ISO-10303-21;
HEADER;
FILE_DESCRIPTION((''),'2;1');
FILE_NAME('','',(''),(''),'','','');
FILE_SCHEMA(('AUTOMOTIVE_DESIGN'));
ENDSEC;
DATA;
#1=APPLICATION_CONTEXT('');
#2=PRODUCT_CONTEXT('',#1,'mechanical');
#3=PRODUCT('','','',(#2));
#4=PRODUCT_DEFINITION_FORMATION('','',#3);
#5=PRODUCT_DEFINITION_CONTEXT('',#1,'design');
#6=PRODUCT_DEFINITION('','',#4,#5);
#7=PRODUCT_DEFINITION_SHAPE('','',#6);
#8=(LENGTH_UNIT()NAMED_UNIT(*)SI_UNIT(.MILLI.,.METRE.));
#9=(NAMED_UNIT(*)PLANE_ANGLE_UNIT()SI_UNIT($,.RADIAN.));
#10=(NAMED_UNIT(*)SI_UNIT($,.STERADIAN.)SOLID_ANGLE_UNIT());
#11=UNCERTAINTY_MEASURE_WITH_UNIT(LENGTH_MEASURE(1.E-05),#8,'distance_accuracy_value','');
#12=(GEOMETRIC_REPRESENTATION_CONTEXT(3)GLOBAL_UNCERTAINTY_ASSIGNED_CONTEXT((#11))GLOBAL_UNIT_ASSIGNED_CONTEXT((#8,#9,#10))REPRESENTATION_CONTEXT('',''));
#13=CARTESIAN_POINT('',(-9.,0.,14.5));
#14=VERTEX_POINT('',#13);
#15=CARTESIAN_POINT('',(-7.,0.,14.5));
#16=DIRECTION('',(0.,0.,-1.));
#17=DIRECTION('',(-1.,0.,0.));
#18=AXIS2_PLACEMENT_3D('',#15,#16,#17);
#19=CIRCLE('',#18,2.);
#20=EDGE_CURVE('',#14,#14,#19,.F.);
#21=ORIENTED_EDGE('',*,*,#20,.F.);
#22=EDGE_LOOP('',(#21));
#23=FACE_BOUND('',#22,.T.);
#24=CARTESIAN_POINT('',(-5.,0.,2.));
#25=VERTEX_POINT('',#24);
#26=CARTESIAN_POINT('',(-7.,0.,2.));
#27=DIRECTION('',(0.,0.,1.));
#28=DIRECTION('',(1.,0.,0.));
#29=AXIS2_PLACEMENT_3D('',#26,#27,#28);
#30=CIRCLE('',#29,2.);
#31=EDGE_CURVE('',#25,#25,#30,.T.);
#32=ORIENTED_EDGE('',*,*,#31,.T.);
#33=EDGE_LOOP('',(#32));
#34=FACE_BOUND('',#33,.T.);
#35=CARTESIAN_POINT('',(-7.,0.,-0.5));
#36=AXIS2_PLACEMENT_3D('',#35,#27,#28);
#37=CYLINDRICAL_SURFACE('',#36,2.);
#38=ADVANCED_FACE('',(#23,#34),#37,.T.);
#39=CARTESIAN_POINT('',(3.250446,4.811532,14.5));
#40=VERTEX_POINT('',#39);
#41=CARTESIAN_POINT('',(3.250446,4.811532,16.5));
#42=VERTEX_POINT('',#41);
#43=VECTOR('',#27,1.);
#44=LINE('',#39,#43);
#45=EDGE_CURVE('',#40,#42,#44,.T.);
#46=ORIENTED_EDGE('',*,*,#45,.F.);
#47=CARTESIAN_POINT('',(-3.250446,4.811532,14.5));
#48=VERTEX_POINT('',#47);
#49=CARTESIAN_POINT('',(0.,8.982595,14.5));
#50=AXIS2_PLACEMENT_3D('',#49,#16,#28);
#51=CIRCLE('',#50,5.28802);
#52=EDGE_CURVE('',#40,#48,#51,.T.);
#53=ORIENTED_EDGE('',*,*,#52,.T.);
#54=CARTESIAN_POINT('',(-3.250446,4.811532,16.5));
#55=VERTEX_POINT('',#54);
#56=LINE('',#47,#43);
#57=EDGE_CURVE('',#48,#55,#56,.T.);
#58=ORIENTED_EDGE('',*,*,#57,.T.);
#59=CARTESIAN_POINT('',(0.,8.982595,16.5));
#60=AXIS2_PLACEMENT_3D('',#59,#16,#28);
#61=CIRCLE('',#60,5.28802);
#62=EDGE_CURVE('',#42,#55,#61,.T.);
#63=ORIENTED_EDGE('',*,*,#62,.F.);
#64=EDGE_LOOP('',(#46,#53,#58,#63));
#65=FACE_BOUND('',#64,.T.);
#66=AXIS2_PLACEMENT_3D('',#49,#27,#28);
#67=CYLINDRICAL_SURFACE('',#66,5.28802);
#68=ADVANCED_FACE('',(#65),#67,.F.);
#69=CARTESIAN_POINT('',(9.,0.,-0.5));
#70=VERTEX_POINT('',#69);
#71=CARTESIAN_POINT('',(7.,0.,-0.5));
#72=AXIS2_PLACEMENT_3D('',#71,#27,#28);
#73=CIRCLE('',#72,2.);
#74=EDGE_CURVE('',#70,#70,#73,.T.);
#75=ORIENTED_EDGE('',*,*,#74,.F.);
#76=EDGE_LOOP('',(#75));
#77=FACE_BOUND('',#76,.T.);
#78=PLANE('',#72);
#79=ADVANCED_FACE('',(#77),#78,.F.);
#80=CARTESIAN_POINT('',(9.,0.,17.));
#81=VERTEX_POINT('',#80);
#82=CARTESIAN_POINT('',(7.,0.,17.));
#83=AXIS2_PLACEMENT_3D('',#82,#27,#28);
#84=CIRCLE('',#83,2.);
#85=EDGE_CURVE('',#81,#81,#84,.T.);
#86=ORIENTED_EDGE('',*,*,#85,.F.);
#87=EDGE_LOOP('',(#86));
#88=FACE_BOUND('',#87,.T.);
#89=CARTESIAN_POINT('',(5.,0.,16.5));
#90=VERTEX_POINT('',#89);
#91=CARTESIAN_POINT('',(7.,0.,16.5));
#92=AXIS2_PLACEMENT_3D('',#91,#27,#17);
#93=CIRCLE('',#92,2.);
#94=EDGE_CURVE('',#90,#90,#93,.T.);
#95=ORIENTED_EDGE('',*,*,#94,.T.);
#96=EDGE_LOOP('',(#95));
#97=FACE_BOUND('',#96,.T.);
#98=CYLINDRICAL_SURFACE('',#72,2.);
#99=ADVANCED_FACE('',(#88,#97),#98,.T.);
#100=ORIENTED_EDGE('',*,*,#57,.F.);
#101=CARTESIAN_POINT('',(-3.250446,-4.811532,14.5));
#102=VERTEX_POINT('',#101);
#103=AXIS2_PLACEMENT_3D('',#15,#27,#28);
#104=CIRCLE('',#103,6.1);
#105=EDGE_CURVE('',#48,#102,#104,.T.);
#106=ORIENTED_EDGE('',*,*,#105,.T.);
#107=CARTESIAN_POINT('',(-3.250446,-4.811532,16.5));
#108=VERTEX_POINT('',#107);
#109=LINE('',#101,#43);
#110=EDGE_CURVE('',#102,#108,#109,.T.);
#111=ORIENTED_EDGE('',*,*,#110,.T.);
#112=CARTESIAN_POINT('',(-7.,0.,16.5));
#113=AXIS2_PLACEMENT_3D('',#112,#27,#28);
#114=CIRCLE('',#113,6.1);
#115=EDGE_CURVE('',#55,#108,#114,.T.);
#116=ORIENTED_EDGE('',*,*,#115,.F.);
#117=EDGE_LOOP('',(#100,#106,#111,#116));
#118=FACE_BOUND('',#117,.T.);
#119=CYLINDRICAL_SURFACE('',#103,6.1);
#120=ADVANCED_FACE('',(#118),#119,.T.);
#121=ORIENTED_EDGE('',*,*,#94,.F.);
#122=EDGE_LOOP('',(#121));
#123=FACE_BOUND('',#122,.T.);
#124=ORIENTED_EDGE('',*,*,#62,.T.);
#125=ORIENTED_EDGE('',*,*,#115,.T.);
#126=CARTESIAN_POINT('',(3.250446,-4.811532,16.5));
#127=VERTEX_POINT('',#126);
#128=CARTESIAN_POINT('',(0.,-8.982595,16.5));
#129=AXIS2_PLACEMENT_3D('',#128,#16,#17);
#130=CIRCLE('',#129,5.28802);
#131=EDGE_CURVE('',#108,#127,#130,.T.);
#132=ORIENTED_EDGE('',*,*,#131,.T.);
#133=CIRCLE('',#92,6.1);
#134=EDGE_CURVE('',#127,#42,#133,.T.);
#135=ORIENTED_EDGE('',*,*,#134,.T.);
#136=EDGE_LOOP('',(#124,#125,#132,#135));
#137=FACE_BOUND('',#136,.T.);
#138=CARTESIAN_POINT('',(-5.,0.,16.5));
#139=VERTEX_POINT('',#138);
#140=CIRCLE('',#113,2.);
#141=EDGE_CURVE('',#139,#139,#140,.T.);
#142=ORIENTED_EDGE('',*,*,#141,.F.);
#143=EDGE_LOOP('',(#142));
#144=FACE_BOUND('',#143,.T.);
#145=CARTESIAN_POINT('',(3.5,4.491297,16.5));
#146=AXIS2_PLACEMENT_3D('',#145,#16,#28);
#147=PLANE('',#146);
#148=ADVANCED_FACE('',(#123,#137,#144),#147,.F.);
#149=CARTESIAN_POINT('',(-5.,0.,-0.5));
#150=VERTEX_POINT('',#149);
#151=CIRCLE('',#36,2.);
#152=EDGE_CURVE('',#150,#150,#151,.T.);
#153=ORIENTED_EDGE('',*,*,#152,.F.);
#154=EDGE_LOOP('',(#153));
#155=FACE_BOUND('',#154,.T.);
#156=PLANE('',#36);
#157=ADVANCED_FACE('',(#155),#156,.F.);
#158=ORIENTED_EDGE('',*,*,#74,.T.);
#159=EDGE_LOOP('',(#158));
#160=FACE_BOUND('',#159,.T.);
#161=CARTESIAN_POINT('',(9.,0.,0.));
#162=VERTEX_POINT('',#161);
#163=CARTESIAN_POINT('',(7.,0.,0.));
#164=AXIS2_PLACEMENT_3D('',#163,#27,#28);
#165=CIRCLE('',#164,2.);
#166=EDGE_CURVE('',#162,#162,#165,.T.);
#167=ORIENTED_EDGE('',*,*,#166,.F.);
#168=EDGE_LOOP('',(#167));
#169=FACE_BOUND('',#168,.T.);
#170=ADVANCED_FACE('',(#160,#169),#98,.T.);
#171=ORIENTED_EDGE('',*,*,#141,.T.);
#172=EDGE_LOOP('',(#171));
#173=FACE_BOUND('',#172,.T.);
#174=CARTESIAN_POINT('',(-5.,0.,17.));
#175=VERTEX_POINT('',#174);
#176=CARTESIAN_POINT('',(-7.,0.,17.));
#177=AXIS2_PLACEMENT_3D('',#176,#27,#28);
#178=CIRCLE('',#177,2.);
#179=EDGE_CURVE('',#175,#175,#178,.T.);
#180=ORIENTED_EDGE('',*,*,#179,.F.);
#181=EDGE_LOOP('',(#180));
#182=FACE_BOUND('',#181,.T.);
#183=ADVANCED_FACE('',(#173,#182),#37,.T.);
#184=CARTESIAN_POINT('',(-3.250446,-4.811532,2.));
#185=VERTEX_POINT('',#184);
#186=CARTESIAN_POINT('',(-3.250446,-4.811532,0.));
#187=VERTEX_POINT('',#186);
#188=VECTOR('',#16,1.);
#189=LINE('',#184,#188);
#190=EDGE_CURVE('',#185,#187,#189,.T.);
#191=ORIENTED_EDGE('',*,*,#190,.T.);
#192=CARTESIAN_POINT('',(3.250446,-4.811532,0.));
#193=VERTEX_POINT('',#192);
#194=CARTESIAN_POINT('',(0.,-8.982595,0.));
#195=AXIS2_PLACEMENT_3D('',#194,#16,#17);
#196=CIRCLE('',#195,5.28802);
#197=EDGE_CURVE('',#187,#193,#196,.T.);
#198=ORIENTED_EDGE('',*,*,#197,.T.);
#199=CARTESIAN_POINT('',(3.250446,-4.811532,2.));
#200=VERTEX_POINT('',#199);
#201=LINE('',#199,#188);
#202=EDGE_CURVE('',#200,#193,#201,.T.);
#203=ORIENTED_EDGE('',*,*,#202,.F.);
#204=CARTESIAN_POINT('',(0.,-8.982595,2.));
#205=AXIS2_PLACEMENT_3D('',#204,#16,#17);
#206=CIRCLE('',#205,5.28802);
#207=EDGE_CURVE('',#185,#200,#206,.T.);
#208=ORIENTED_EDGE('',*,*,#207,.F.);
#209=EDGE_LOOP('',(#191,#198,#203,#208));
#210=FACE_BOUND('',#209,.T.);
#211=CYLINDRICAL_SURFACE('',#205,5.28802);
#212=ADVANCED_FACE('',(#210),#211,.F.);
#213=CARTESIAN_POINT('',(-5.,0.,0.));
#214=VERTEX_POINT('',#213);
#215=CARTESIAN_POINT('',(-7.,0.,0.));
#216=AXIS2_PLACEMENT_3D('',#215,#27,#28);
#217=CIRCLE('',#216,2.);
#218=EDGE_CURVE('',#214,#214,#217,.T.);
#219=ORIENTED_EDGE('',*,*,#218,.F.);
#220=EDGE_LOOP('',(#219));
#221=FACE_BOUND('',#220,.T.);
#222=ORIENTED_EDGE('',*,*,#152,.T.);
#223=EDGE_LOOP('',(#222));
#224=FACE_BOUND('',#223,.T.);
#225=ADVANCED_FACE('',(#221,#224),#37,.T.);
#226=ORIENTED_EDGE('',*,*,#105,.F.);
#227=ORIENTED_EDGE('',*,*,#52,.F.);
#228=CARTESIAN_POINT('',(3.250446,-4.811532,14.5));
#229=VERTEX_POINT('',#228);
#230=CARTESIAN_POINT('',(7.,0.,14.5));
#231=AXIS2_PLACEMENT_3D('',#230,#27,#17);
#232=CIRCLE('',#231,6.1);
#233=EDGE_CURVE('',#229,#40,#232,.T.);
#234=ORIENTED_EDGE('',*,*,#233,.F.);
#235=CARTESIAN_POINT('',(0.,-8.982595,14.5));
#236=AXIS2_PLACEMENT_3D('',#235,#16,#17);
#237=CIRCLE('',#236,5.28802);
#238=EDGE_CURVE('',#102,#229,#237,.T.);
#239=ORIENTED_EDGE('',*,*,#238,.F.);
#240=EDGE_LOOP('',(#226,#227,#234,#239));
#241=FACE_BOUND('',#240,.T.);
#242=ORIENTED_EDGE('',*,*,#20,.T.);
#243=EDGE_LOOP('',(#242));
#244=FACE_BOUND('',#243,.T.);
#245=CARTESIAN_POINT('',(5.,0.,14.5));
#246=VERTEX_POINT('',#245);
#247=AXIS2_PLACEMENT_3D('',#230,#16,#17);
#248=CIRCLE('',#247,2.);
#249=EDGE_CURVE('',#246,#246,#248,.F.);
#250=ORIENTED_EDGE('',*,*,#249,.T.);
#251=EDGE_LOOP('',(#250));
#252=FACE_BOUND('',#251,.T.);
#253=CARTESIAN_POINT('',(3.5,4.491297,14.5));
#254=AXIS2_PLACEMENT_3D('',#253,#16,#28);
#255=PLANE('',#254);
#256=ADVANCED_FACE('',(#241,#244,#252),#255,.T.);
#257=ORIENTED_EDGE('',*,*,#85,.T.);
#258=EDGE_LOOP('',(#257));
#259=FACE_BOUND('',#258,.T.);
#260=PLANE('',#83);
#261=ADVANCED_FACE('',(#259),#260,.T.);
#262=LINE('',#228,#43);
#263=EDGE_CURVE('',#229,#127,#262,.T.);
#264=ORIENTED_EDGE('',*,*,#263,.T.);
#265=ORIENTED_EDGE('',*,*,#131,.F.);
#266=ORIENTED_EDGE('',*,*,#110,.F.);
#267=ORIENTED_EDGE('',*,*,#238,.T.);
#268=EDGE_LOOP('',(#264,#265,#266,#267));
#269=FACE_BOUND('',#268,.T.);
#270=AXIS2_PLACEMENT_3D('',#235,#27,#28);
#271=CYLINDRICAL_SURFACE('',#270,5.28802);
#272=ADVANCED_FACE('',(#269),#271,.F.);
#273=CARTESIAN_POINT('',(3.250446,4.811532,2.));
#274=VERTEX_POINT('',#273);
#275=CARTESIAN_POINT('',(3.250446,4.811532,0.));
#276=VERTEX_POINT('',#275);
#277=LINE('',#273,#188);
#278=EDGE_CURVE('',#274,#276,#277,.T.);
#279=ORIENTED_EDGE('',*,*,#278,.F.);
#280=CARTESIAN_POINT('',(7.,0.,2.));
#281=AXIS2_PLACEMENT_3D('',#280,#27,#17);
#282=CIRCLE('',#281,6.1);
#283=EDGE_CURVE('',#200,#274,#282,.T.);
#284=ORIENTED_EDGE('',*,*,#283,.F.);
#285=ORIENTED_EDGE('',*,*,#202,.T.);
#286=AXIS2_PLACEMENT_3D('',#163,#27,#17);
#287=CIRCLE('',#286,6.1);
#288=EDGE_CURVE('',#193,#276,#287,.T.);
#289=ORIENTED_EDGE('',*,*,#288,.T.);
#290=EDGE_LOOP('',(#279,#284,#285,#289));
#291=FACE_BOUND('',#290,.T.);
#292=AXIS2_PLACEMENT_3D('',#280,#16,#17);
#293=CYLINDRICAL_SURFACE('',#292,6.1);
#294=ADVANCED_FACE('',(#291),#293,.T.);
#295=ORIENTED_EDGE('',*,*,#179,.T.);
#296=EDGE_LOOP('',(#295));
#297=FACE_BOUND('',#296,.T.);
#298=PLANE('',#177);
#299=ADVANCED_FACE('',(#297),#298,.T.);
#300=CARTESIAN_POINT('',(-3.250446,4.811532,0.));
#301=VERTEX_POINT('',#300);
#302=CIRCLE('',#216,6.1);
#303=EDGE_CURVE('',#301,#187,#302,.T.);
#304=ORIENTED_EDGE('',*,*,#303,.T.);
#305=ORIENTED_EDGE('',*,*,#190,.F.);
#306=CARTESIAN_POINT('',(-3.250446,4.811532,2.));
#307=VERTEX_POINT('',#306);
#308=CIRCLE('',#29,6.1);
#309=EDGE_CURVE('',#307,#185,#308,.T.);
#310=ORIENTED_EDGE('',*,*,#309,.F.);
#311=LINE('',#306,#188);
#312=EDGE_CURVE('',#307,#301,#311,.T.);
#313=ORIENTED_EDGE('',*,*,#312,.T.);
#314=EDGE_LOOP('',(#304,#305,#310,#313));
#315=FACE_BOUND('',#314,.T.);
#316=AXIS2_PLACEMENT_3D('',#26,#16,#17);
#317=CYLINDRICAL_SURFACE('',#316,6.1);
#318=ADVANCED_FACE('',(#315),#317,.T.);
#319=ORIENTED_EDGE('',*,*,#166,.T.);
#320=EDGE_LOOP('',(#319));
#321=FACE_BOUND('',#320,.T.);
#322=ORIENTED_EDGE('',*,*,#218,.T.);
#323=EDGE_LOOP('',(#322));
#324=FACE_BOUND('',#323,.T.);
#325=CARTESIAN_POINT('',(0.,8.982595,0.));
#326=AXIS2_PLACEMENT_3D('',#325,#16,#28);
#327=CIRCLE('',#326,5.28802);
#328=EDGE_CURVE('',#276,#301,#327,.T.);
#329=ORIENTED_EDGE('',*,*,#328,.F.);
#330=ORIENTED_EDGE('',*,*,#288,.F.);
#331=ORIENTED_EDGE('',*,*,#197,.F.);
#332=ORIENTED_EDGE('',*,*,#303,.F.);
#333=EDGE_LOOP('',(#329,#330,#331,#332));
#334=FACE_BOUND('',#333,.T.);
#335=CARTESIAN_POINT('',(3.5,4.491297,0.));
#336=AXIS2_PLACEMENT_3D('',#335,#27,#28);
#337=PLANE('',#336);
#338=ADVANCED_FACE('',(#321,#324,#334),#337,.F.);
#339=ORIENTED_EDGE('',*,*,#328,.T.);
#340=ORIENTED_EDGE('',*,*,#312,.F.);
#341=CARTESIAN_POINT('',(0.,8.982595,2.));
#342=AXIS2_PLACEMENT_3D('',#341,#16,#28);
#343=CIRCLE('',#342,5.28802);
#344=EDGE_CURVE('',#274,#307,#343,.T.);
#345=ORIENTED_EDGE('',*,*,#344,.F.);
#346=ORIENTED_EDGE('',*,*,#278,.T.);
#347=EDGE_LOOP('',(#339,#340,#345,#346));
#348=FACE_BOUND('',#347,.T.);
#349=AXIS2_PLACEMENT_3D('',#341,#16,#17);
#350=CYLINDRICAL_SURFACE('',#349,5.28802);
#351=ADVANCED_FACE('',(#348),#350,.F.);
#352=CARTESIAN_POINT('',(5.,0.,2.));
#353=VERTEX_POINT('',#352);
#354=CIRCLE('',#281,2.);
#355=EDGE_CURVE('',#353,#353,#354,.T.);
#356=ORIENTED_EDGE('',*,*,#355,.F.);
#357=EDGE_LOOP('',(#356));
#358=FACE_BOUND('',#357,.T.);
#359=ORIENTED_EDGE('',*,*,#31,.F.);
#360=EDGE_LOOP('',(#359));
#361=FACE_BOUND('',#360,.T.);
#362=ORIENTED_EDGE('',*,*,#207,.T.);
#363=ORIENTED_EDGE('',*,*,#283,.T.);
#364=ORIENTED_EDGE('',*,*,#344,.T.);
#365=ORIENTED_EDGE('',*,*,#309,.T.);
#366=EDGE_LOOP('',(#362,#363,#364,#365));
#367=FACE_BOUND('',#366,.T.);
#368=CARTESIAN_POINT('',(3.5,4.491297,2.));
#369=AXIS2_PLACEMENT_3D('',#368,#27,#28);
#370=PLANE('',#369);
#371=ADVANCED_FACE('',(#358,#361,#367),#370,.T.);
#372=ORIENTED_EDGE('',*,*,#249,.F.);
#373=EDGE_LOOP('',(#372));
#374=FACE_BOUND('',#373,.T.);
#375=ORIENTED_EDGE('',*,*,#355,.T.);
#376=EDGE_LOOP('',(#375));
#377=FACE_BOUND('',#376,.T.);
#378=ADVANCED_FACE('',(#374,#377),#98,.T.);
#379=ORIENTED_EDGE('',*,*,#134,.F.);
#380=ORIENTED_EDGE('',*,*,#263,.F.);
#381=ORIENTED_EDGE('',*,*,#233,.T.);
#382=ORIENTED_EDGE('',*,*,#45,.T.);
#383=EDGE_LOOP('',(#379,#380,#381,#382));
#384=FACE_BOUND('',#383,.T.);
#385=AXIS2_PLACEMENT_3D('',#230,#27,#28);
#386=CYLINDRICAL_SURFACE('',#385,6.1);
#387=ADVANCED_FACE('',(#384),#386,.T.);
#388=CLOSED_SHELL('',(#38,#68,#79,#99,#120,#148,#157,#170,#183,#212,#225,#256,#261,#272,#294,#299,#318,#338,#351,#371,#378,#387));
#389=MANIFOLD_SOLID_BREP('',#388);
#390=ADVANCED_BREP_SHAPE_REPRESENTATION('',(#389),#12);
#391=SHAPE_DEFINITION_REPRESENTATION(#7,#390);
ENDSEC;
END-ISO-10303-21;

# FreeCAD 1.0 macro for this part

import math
import FreeCAD as App
import Part
import Sketcher
from FreeCAD import Vector
Q = App.Units.Quantity

doc = App.newDocument("Part")
params = doc.addObject("Spreadsheet::Sheet", "Params")
for row, (alias, value) in enumerate([
    ("sketch1_diameter", "4 mm"),
    ("sketch1_radius", "6.1 mm"),
    ("pad1_length", "2 mm"),
    ("sketch2_diameter", "4 mm"),
    ("pad2_length", "15 mm"),
    ("pad2_length2", "2.5 mm"),
], start=1):
    params.set(f"A{row}", alias)
    params.set(f"B{row}", "=" + value)
    params.setAlias(f"B{row}", alias)

body = doc.addObject("PartDesign::Body", "Body")

# Sketch on XY plane
sketch1 = doc.addObject("Sketcher::SketchObject", "Sketch")
body.addObject(sketch1)
sketch1.AttachmentSupport = (doc.XY_Plane, [""])
sketch1.MapMode = "FlatFace"
sketch1.addGeometry([
    Part.ArcOfCircle(Part.Circle(Vector(-7, 0, 0), Vector(0, 0, 1), 6.1), math.radians(52), math.radians(308)),  # 0
    Part.ArcOfCircle(Part.Circle(Vector(0, -9, 0), Vector(0, 0, 1), 5.3), math.radians(52), math.radians(128)),  # 1
    Part.ArcOfCircle(Part.Circle(Vector(7, 0, 0), Vector(0, 0, 1), 6.1), math.radians(-128), math.radians(128)),  # 2
    Part.ArcOfCircle(Part.Circle(Vector(0, 9, 0), Vector(0, 0, 1), 5.3), math.radians(-128), math.radians(-52)),  # 3
    Part.Circle(Vector(-7, 0, 0), Vector(0, 0, 1), 2),  # 4
    Part.Circle(Vector(7, 0, 0), Vector(0, 0, 1), 2),  # 5
], False)
sketch1.addConstraint([
    Sketcher.Constraint("Tangent", 0, 2, 1, 2),
    Sketcher.Constraint("Tangent", 1, 1, 2, 1),
    Sketcher.Constraint("Tangent", 2, 2, 3, 2),
    Sketcher.Constraint("Tangent", 3, 1, 0, 1),
    Sketcher.Constraint("Coincident", 4, 3, 0, 3),
    Sketcher.Constraint("Coincident", 5, 3, 2, 3),
    Sketcher.Constraint("Equal", 0, 2),
    Sketcher.Constraint("Equal", 1, 3),
    Sketcher.Constraint("Equal", 4, 5),
    Sketcher.Constraint("Symmetric", 0, 3, 2, 3, -1, 1),
    Sketcher.Constraint("PointOnObject", 0, 3, -1),
    Sketcher.Constraint("Diameter", 4, Q("4 mm")),
    Sketcher.Constraint("Radius", 0, Q("6.1 mm")),
    Sketcher.Constraint("DistanceX", 0, 3, -1, 1, Q("7 mm")),
    Sketcher.Constraint("Radius", 1, Q("5.28802 mm")),
])
sketch1.setExpression("Constraints[11]", "Params.sketch1_diameter")
sketch1.setExpression("Constraints[12]", "Params.sketch1_radius")
pad1 = doc.addObject("PartDesign::Pad", "Pad")
body.addObject(pad1)
pad1.Profile = sketch1
pad1.setExpression("Length", "Params.pad1_length")

# Sketch on XY plane
sketch2 = doc.addObject("Sketcher::SketchObject", "Sketch001")
body.addObject(sketch2)
sketch2.AttachmentSupport = (doc.XY_Plane, [""])
sketch2.MapMode = "FlatFace"
sketch2.AttachmentOffset = App.Placement(Vector(0, 0, 2), App.Rotation())
sketch2.addGeometry([
    Part.Circle(Vector(7, 0, 0), Vector(0, 0, 1), 2),
    Part.Circle(Vector(-7, 0, 0), Vector(0, 0, 1), 2),
], False)
sketch2.addConstraint([
    Sketcher.Constraint("Equal", 0, 1),
    Sketcher.Constraint("Symmetric", 0, 3, 1, 3, -1, 1),
    Sketcher.Constraint("PointOnObject", 0, 3, -1),
    Sketcher.Constraint("Diameter", 0, Q("4 mm")),
    Sketcher.Constraint("DistanceX", -1, 1, 0, 3, Q("7 mm")),
])
sketch2.setExpression("Constraints[3]", "Params.sketch2_diameter")
pad2 = doc.addObject("PartDesign::Pad", "Pad001")
body.addObject(pad2)
pad2.Profile = sketch2
pad2.Type = "TwoLengths"
pad2.setExpression("Length", "Params.pad2_length")
pad2.setExpression("Length2", "Params.pad2_length2")
doc.recompute()

datumplane = doc.addObject("PartDesign::Plane", "DatumPlane")
body.addObject(datumplane)
datumplane.AttachmentSupport = (doc.XY_Plane, [""])
datumplane.MapMode = "FlatFace"
datumplane.AttachmentOffset = App.Placement(Vector(0, 0, 8.25), App.Rotation())
mirrored = doc.addObject("PartDesign::Mirrored", "Mirrored")
body.addObject(mirrored)
mirrored.Originals = [pad1]
mirrored.MirrorPlane = (datumplane, [""])
body.Tip = mirrored

doc.recompute()
